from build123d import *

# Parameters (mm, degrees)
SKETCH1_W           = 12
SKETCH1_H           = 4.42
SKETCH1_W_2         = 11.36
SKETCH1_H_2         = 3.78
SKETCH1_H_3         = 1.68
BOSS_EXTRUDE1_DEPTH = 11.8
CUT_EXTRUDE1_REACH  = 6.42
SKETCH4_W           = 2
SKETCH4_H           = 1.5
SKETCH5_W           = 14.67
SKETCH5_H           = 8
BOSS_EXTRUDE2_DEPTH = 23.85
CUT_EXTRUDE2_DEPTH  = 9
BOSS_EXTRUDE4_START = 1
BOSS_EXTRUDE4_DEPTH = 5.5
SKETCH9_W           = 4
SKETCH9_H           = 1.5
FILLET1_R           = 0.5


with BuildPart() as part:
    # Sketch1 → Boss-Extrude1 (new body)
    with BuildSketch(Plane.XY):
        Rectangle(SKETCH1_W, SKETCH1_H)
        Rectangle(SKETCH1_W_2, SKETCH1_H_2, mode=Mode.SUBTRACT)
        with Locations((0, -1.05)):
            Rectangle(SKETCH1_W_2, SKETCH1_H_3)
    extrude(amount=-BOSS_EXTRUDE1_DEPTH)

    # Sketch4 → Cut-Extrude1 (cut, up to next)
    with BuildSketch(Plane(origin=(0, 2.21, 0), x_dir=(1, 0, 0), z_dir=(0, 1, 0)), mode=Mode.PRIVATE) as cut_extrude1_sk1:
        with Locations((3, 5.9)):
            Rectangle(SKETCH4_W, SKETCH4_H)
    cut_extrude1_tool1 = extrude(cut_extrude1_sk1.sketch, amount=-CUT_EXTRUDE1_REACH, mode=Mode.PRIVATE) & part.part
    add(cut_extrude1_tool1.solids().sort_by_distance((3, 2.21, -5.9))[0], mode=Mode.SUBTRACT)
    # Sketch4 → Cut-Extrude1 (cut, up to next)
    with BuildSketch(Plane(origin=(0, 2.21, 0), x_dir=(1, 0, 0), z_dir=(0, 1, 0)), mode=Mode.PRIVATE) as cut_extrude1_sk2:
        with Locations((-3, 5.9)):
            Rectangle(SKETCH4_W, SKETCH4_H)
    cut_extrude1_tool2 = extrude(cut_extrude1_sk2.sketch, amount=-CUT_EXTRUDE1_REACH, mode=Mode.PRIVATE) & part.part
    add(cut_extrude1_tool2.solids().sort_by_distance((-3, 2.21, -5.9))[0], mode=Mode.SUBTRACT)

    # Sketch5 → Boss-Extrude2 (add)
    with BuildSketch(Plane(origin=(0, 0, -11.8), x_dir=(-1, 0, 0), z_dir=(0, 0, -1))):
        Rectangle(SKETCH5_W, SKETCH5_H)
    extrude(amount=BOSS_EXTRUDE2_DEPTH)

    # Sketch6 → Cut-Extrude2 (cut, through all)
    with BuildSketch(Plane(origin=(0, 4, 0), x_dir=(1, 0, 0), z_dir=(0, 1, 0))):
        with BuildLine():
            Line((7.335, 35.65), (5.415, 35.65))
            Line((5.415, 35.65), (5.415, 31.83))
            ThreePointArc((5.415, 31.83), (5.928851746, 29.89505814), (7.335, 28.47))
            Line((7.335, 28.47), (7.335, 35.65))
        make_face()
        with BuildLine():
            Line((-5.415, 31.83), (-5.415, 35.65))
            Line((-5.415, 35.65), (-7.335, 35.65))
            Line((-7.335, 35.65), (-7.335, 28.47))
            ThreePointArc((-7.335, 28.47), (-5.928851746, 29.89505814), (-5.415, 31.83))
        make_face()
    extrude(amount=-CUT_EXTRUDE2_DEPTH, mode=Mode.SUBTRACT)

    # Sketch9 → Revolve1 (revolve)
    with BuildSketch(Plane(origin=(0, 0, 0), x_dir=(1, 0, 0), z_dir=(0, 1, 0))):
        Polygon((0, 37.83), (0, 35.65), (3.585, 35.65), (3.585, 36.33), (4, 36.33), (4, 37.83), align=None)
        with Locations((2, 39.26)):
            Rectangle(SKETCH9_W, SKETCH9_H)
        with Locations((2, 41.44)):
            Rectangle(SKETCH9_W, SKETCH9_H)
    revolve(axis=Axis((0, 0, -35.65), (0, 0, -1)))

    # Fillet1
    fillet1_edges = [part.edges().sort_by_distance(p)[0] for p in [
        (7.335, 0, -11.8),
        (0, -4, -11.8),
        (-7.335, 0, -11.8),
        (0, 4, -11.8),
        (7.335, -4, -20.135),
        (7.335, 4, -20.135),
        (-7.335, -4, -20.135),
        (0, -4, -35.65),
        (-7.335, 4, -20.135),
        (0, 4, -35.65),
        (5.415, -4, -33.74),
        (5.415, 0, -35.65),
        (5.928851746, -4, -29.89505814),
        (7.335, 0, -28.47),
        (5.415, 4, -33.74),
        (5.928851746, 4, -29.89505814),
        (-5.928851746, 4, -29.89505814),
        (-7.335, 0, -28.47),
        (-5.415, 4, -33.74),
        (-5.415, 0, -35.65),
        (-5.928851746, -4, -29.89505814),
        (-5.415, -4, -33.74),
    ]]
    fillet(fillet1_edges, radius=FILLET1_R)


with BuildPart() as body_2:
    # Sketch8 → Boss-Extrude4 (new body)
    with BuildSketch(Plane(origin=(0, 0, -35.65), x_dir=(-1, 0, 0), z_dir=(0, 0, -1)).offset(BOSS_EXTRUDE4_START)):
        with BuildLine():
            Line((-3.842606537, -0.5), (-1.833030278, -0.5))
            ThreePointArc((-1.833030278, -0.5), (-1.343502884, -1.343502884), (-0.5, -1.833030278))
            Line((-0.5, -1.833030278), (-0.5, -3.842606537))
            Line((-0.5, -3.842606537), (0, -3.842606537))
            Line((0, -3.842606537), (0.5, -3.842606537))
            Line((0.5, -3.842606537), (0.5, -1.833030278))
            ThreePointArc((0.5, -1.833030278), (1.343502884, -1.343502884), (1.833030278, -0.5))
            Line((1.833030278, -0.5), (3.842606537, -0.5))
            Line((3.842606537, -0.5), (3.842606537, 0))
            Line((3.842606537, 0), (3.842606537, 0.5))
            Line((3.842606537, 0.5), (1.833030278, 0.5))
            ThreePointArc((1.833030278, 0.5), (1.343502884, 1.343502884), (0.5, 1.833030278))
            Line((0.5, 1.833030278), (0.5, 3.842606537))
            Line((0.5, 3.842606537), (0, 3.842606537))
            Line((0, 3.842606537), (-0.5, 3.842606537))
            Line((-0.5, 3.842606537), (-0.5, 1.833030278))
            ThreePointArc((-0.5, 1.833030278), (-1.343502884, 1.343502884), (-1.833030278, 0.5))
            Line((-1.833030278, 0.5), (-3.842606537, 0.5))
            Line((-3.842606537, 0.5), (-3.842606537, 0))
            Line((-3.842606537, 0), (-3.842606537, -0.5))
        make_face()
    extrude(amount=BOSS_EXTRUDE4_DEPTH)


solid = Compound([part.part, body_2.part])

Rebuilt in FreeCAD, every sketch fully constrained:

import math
import FreeCAD as App
import Part
import Sketcher

V = App.Vector
Q = App.Units.Quantity


def edges_at(feature, points):
    """Names of the edges that pass closest to the given points."""
    edges = feature.Shape.Edges
    near = lambda p: min(range(len(edges)), key=lambda i: edges[i].distToShape(Part.Vertex(*p))[0])
    return sorted({f"Edge{near(p) + 1}" for p in points})

doc = App.newDocument("Part")
body = doc.addObject("PartDesign::Body", "Body")
body.AllowCompound = True

# Sketch on XY plane
sketch1 = doc.addObject("Sketcher::SketchObject", "Sketch")
body.addObject(sketch1)
sketch1.AttachmentSupport = (doc.XY_Plane, [""])
sketch1.MapMode = "FlatFace"
sketch1.addGeometry(Part.LineSegment(V(-6, 2.2, 0), V(-6, -2.2, 0)), False)
sketch1.addGeometry(Part.LineSegment(V(-6, -2.2, 0), V(6, -2.2, 0)), False)
sketch1.addGeometry(Part.LineSegment(V(6, -2.2, 0), V(6, 2.2, 0)), False)
sketch1.addGeometry(Part.LineSegment(V(6, 2.2, 0), V(-6, 2.2, 0)), False)
sketch1.addGeometry(Part.LineSegment(V(5.7, 1.9, 0), V(5.7, -0.2, 0)), False)
sketch1.addGeometry(Part.LineSegment(V(5.7, -0.2, 0), V(-5.7, -0.2, 0)), False)
sketch1.addGeometry(Part.LineSegment(V(-5.7, -0.2, 0), V(-5.7, 1.9, 0)), False)
sketch1.addGeometry(Part.LineSegment(V(-5.7, 1.9, 0), V(5.7, 1.9, 0)), False)
sketch1.addConstraint(Sketcher.Constraint("Coincident", 0, 2, 1, 1))
sketch1.addConstraint(Sketcher.Constraint("Coincident", 1, 2, 2, 1))
sketch1.addConstraint(Sketcher.Constraint("Coincident", 2, 2, 3, 1))
sketch1.addConstraint(Sketcher.Constraint("Coincident", 3, 2, 0, 1))
sketch1.addConstraint(Sketcher.Constraint("Coincident", 4, 2, 5, 1))
sketch1.addConstraint(Sketcher.Constraint("Coincident", 5, 2, 6, 1))
sketch1.addConstraint(Sketcher.Constraint("Coincident", 6, 2, 7, 1))
sketch1.addConstraint(Sketcher.Constraint("Coincident", 7, 2, 4, 1))
sketch1.addConstraint(Sketcher.Constraint("Vertical", 0))
sketch1.addConstraint(Sketcher.Constraint("Horizontal", 1))
sketch1.addConstraint(Sketcher.Constraint("Vertical", 2))
sketch1.addConstraint(Sketcher.Constraint("Horizontal", 3))
sketch1.addConstraint(Sketcher.Constraint("Vertical", 4))
sketch1.addConstraint(Sketcher.Constraint("Horizontal", 5))
sketch1.addConstraint(Sketcher.Constraint("Vertical", 6))
sketch1.addConstraint(Sketcher.Constraint("Horizontal", 7))
sketch1.addConstraint(Sketcher.Constraint("Symmetric", 0, 2, 2, 2, -1, 1))
sketch1.addConstraint(Sketcher.Constraint("DistanceX", 1, 1, 1, 2, Q("12 mm")))
sketch1.addConstraint(Sketcher.Constraint("DistanceY", 4, 2, 4, 1, Q("2.1 mm")))
sketch1.addConstraint(Sketcher.Constraint("DistanceY", 1, 2, 4, 2, Q("2 mm")))
sketch1.addConstraint(Sketcher.Constraint("DistanceX", 5, 2, 5, 1, Q("11.36 mm")))
sketch1.addConstraint(Sketcher.Constraint("DistanceY", 0, 2, 0, 1, Q("4.42 mm")))
sketch1.addConstraint(Sketcher.Constraint("DistanceX", -1, 1, 4, 2, Q("5.68 mm")))
pad1 = doc.addObject("PartDesign::Pad", "Pad")
body.addObject(pad1)
pad1.Profile = sketch1
pad1.Length = 11.8
pad1.Reversed = True

# Sketch on XZ plane
sketch2 = doc.addObject("Sketcher::SketchObject", "Sketch001")
body.addObject(sketch2)
sketch2.AttachmentSupport = (doc.XZ_Plane, [""])
sketch2.MapMode = "FlatFace"
sketch2.AttachmentOffset = App.Placement(V(0, 0, -2.21), App.Rotation())
sketch2.addGeometry(Part.LineSegment(V(2, -6.7, 0), V(2, -5.2, 0)), False)
sketch2.addGeometry(Part.LineSegment(V(2, -5.2, 0), V(4, -5.2, 0)), False)
sketch2.addGeometry(Part.LineSegment(V(4, -5.2, 0), V(4, -6.7, 0)), False)
sketch2.addGeometry(Part.LineSegment(V(4, -6.7, 0), V(2, -6.7, 0)), False)
sketch2.addConstraint(Sketcher.Constraint("Coincident", 0, 2, 1, 1))
sketch2.addConstraint(Sketcher.Constraint("Coincident", 1, 2, 2, 1))
sketch2.addConstraint(Sketcher.Constraint("Coincident", 2, 2, 3, 1))
sketch2.addConstraint(Sketcher.Constraint("Coincident", 3, 2, 0, 1))
sketch2.addConstraint(Sketcher.Constraint("Vertical", 0))
sketch2.addConstraint(Sketcher.Constraint("Horizontal", 1))
sketch2.addConstraint(Sketcher.Constraint("Vertical", 2))
sketch2.addConstraint(Sketcher.Constraint("Horizontal", 3))
sketch2.addConstraint(Sketcher.Constraint("DistanceX", 1, 1, 1, 2, Q("2 mm")))
sketch2.addConstraint(Sketcher.Constraint("DistanceY", 0, 1, 0, 2, Q("1.5 mm")))
sketch2.addConstraint(Sketcher.Constraint("DistanceX", -1, 1, 0, 2, Q("2 mm")))
sketch2.addConstraint(Sketcher.Constraint("DistanceY", 0, 2, -1, 1, Q("5.15 mm")))
pocket1 = doc.addObject("PartDesign::Pocket", "Pocket")
body.addObject(pocket1)
pocket1.Profile = sketch2
pocket1.Type = "UpToFirst"
pocket1.Reversed = True

# Sketch on XZ plane
sketch3 = doc.addObject("Sketcher::SketchObject", "Sketch002")
body.addObject(sketch3)
sketch3.AttachmentSupport = (doc.XZ_Plane, [""])
sketch3.MapMode = "FlatFace"
sketch3.AttachmentOffset = App.Placement(V(0, 0, -2.21), App.Rotation())
sketch3.addGeometry(Part.LineSegment(V(-4, -6.7, 0), V(-4, -5.2, 0)), False)
sketch3.addGeometry(Part.LineSegment(V(-4, -5.2, 0), V(-2, -5.2, 0)), False)
sketch3.addGeometry(Part.LineSegment(V(-2, -5.2, 0), V(-2, -6.7, 0)), False)
sketch3.addGeometry(Part.LineSegment(V(-2, -6.7, 0), V(-4, -6.7, 0)), False)
sketch3.addConstraint(Sketcher.Constraint("Coincident", 0, 2, 1, 1))
sketch3.addConstraint(Sketcher.Constraint("Coincident", 1, 2, 2, 1))
sketch3.addConstraint(Sketcher.Constraint("Coincident", 2, 2, 3, 1))
sketch3.addConstraint(Sketcher.Constraint("Coincident", 3, 2, 0, 1))
sketch3.addConstraint(Sketcher.Constraint("Vertical", 0))
sketch3.addConstraint(Sketcher.Constraint("Horizontal", 1))
sketch3.addConstraint(Sketcher.Constraint("Vertical", 2))
sketch3.addConstraint(Sketcher.Constraint("Horizontal", 3))
sketch3.addConstraint(Sketcher.Constraint("DistanceX", 1, 1, 1, 2, Q("2 mm")))
sketch3.addConstraint(Sketcher.Constraint("DistanceY", 0, 1, 0, 2, Q("1.5 mm")))
sketch3.addConstraint(Sketcher.Constraint("DistanceX", 0, 2, -1, 1, Q("4 mm")))
sketch3.addConstraint(Sketcher.Constraint("DistanceY", 0, 2, -1, 1, Q("5.15 mm")))
pocket2 = doc.addObject("PartDesign::Pocket", "Pocket001")
body.addObject(pocket2)
pocket2.Profile = sketch3
pocket2.Type = "UpToFirst"
pocket2.Reversed = True

# Sketch on XY plane
sketch4 = doc.addObject("Sketcher::SketchObject", "Sketch003")
body.addObject(sketch4)
sketch4.AttachmentSupport = (doc.XY_Plane, [""])
sketch4.MapMode = "FlatFace"
sketch4.AttachmentOffset = App.Placement(V(0, 0, -11.8), App.Rotation())
sketch4.addGeometry(Part.LineSegment(V(7, 4, 0), V(7, -4, 0)), False)
sketch4.addGeometry(Part.LineSegment(V(7, -4, 0), V(-7, -4, 0)), False)
sketch4.addGeometry(Part.LineSegment(V(-7, -4, 0), V(-7, 4, 0)), False)
sketch4.addGeometry(Part.LineSegment(V(-7, 4, 0), V(7, 4, 0)), False)
sketch4.addConstraint(Sketcher.Constraint("Coincident", 0, 2, 1, 1))
sketch4.addConstraint(Sketcher.Constraint("Coincident", 1, 2, 2, 1))
sketch4.addConstraint(Sketcher.Constraint("Coincident", 2, 2, 3, 1))
sketch4.addConstraint(Sketcher.Constraint("Coincident", 3, 2, 0, 1))
sketch4.addConstraint(Sketcher.Constraint("Vertical", 0))
sketch4.addConstraint(Sketcher.Constraint("Horizontal", 1))
sketch4.addConstraint(Sketcher.Constraint("Vertical", 2))
sketch4.addConstraint(Sketcher.Constraint("Horizontal", 3))
sketch4.addConstraint(Sketcher.Constraint("Symmetric", 0, 2, 2, 2, -1, 1))
sketch4.addConstraint(Sketcher.Constraint("DistanceY", 0, 2, 0, 1, Q("8 mm")))
sketch4.addConstraint(Sketcher.Constraint("DistanceX", 1, 2, 1, 1, Q("14.67 mm")))
pad2 = doc.addObject("PartDesign::Pad", "Pad001")
body.addObject(pad2)
pad2.Profile = sketch4
pad2.Length = 23.85
pad2.Reversed = True

# Sketch on XZ plane
sketch5 = doc.addObject("Sketcher::SketchObject", "Sketch004")
body.addObject(sketch5)
sketch5.AttachmentSupport = (doc.XZ_Plane, [""])
sketch5.MapMode = "FlatFace"
sketch5.AttachmentOffset = App.Placement(V(0, 0, -4), App.Rotation())
sketch5.addGeometry(Part.LineSegment(V(7.3, -35.6, 0), V(5.4, -35.6, 0)), False)
sketch5.addGeometry(Part.LineSegment(V(5.4, -35.6, 0), V(5.4, -31.8, 0)), False)
sketch5.addGeometry(Part.ArcOfCircle(Part.Circle(V(9.3, -31.8, 0), V(0, 0, 1), 3.9), math.radians(121), math.radians(180)), False)
sketch5.addGeometry(Part.LineSegment(V(7.3, -28.5, 0), V(7.3, -35.6, 0)), False)
sketch5.addGeometry(Part.LineSegment(V(-5.4, -31.8, 0), V(-5.4, -35.6, 0)), False)
sketch5.addGeometry(Part.LineSegment(V(-5.4, -35.6, 0), V(-7.3, -35.6, 0)), False)
sketch5.addGeometry(Part.LineSegment(V(-7.3, -35.6, 0), V(-7.3, -28.5, 0)), False)
sketch5.addGeometry(Part.ArcOfCircle(Part.Circle(V(-9.3, -31.8, 0), V(0, 0, 1), 3.9), math.radians(0), math.radians(59)), False)
sketch5.addConstraint(Sketcher.Constraint("Coincident", 0, 2, 1, 1))
sketch5.addConstraint(Sketcher.Constraint("Tangent", 1, 2, 2, 2))
sketch5.addConstraint(Sketcher.Constraint("Coincident", 2, 1, 3, 1))
sketch5.addConstraint(Sketcher.Constraint("Coincident", 3, 2, 0, 1))
sketch5.addConstraint(Sketcher.Constraint("Coincident", 4, 2, 5, 1))
sketch5.addConstraint(Sketcher.Constraint("Coincident", 5, 2, 6, 1))
sketch5.addConstraint(Sketcher.Constraint("Coincident", 6, 2, 7, 2))
sketch5.addConstraint(Sketcher.Constraint("Tangent", 7, 1, 4, 1))
sketch5.addConstraint(Sketcher.Constraint("Horizontal", 0))
sketch5.addConstraint(Sketcher.Constraint("Vertical", 1))
sketch5.addConstraint(Sketcher.Constraint("Vertical", 3))
sketch5.addConstraint(Sketcher.Constraint("Vertical", 4))
sketch5.addConstraint(Sketcher.Constraint("Horizontal", 5))
sketch5.addConstraint(Sketcher.Constraint("Vertical", 6))
sketch5.addConstraint(Sketcher.Constraint("Equal", 2, 7))
sketch5.addConstraint(Sketcher.Constraint("Symmetric", 2, 3, 7, 3, -2))
sketch5.addConstraint(Sketcher.Constraint("Symmetric", 3, 2, 5, 2, -2))
sketch5.addConstraint(Sketcher.Constraint("Radius", 2, Q("3.9 mm")))
sketch5.addConstraint(Sketcher.Constraint("DistanceX", 0, 2, 0, 1, Q("1.92 mm")))
sketch5.addConstraint(Sketcher.Constraint("DistanceY", 1, 1, 1, 2, Q("3.82 mm")))
sketch5.addConstraint(Sketcher.Constraint("DistanceY", 2, 3, -1, 1, Q("31.83 mm")))
sketch5.addConstraint(Sketcher.Constraint("DistanceX", 7, 3, 2, 3, Q("18.63 mm")))
pocket3 = doc.addObject("PartDesign::Pocket", "Pocket002")
body.addObject(pocket3)
pocket3.Profile = sketch5
pocket3.Type = "ThroughAll"
pocket3.Reversed = True

# Sketch on XZ plane
sketch6 = doc.addObject("Sketcher::SketchObject", "Sketch005")
body.addObject(sketch6)
sketch6.AttachmentSupport = (doc.XZ_Plane, [""])
sketch6.MapMode = "FlatFace"
sketch6.addGeometry(Part.LineSegment(V(0, -37.83, 0), V(0, -35.65, 0)), False)
sketch6.addGeometry(Part.LineSegment(V(0, -35.65, 0), V(3.58, -35.65, 0)), False)
sketch6.addGeometry(Part.LineSegment(V(3.58, -35.65, 0), V(3.58, -36.33, 0)), False)
sketch6.addGeometry(Part.LineSegment(V(3.58, -36.33, 0), V(4, -36.33, 0)), False)
sketch6.addGeometry(Part.LineSegment(V(4, -36.33, 0), V(4, -37.83, 0)), False)
sketch6.addGeometry(Part.LineSegment(V(4, -37.83, 0), V(0, -37.83, 0)), False)
sketch6.addGeometry(Part.LineSegment(V(0, -40.01, 0), V(0, -38.51, 0)), False)
sketch6.addGeometry(Part.LineSegment(V(0, -38.51, 0), V(4, -38.51, 0)), False)
sketch6.addGeometry(Part.LineSegment(V(4, -38.51, 0), V(4, -40.01, 0)), False)
sketch6.addGeometry(Part.LineSegment(V(4, -40.01, 0), V(0, -40.01, 0)), False)
sketch6.addGeometry(Part.LineSegment(V(0, -42.19, 0), V(0, -40.69, 0)), False)
sketch6.addGeometry(Part.LineSegment(V(0, -40.69, 0), V(4, -40.69, 0)), False)
sketch6.addGeometry(Part.LineSegment(V(4, -40.69, 0), V(4, -42.19, 0)), False)
sketch6.addGeometry(Part.LineSegment(V(4, -42.19, 0), V(0, -42.19, 0)), False)
sketch6.addConstraint(Sketcher.Constraint("Coincident", 0, 2, 1, 1))
sketch6.addConstraint(Sketcher.Constraint("Coincident", 1, 2, 2, 1))
sketch6.addConstraint(Sketcher.Constraint("Coincident", 2, 2, 3, 1))
sketch6.addConstraint(Sketcher.Constraint("Coincident", 3, 2, 4, 1))
sketch6.addConstraint(Sketcher.Constraint("Coincident", 4, 2, 5, 1))
sketch6.addConstraint(Sketcher.Constraint("Coincident", 5, 2, 0, 1))
sketch6.addConstraint(Sketcher.Constraint("Coincident", 6, 2, 7, 1))
sketch6.addConstraint(Sketcher.Constraint("Coincident", 7, 2, 8, 1))
sketch6.addConstraint(Sketcher.Constraint("Coincident", 8, 2, 9, 1))
sketch6.addConstraint(Sketcher.Constraint("Coincident", 9, 2, 6, 1))
sketch6.addConstraint(Sketcher.Constraint("Coincident", 10, 2, 11, 1))
sketch6.addConstraint(Sketcher.Constraint("Coincident", 11, 2, 12, 1))
sketch6.addConstraint(Sketcher.Constraint("Coincident", 12, 2, 13, 1))
sketch6.addConstraint(Sketcher.Constraint("Coincident", 13, 2, 10, 1))
sketch6.addConstraint(Sketcher.Constraint("Vertical", 0))
sketch6.addConstraint(Sketcher.Constraint("Horizontal", 1))
sketch6.addConstraint(Sketcher.Constraint("Vertical", 2))
sketch6.addConstraint(Sketcher.Constraint("Horizontal", 3))
sketch6.addConstraint(Sketcher.Constraint("Vertical", 4))
sketch6.addConstraint(Sketcher.Constraint("Horizontal", 5))
sketch6.addConstraint(Sketcher.Constraint("Vertical", 6))
sketch6.addConstraint(Sketcher.Constraint("Horizontal", 7))
sketch6.addConstraint(Sketcher.Constraint("Vertical", 8))
sketch6.addConstraint(Sketcher.Constraint("Horizontal", 9))
sketch6.addConstraint(Sketcher.Constraint("Vertical", 10))
sketch6.addConstraint(Sketcher.Constraint("Horizontal", 11))
sketch6.addConstraint(Sketcher.Constraint("Vertical", 12))
sketch6.addConstraint(Sketcher.Constraint("Horizontal", 13))
sketch6.addConstraint(Sketcher.Constraint("PointOnObject", 0, 2, -2))
sketch6.addConstraint(Sketcher.Constraint("PointOnObject", 6, 2, -2))
sketch6.addConstraint(Sketcher.Constraint("PointOnObject", 10, 2, -2))
sketch6.addConstraint(Sketcher.Constraint("Vertical", 4, 2, 7, 2))
sketch6.addConstraint(Sketcher.Constraint("Vertical", 8, 2, 11, 2))
sketch6.addConstraint(Sketcher.Constraint("Equal", 4, 6))
sketch6.addConstraint(Sketcher.Constraint("Equal", 8, 10))
sketch6.addConstraint(Sketcher.Constraint("DistanceX", 5, 2, 5, 1, Q("4 mm")))
sketch6.addConstraint(Sketcher.Constraint("DistanceY", 4, 2, 4, 1, Q("1.5 mm")))
sketch6.addConstraint(Sketcher.Constraint("DistanceY", 0, 1, 0, 2, Q("2.18 mm")))
sketch6.addConstraint(Sketcher.Constraint("DistanceX", 1, 1, 1, 2, Q("3.585 mm")))
sketch6.addConstraint(Sketcher.Constraint("DistanceY", 0, 2, -1, 1, Q("35.65 mm")))
sketch6.addConstraint(Sketcher.Constraint("DistanceY", 6, 2, -1, 1, Q("38.51 mm")))
sketch6.addConstraint(Sketcher.Constraint("DistanceY", 10, 2, -1, 1, Q("40.69 mm")))
revolution = doc.addObject("PartDesign::Revolution", "Revolution")
body.addObject(revolution)
revolution.Profile = sketch6
revolution.ReferenceAxis = (sketch6, ["V_Axis"])
revolution.Angle = 360
doc.recompute()

fillet = doc.addObject("PartDesign::Fillet", "Fillet")
body.addObject(fillet)
fillet.Base = (revolution, edges_at(revolution, [
    (7.335, 0, -11.8),
    (0, -4, -11.8),
    (-7.335, 0, -11.8),
    (0, 4, -11.8),
    (7.335, -4, -20.135),
    (7.335, 4, -20.135),
    (-7.335, -4, -20.135),
    (0, -4, -35.65),
    (-7.335, 4, -20.135),
    (0, 4, -35.65),
    (5.415, -4, -33.74),
    (5.415, 0, -35.65),
    (5.929, -4, -29.895),
    (7.335, 0, -28.47),
    (5.415, 4, -33.74),
    (5.929, 4, -29.895),
    (-5.929, 4, -29.895),
    (-7.335, 0, -28.47),
    (-5.415, 4, -33.74),
    (-5.415, 0, -35.65),
    (-5.929, -4, -29.895),
    (-5.415, -4, -33.74),
]))
fillet.Radius = 0.5
body2 = doc.addObject("PartDesign::Body", "Body001")

# Sketch on XY plane
sketch7 = doc.addObject("Sketcher::SketchObject", "Sketch006")
body2.addObject(sketch7)
sketch7.AttachmentSupport = (doc.getObject("XY_Plane001"), [""])
sketch7.MapMode = "FlatFace"
sketch7.AttachmentOffset = App.Placement(V(0, 0, -36.65), App.Rotation())
sketch7.addGeometry(Part.LineSegment(V(3.8, -0.5, 0), V(1.8, -0.5, 0)), False)
sketch7.addGeometry(Part.ArcOfCircle(Part.Circle(V(0, 0, 0), V(0, 0, 1), 1.9), math.radians(-75), math.radians(-15)), False)
sketch7.addGeometry(Part.LineSegment(V(0.5, -1.8, 0), V(0.5, -3.8, 0)), False)
sketch7.addGeometry(Part.LineSegment(V(0.5, -3.8, 0), V(-0.5, -3.8, 0)), False)
sketch7.addGeometry(Part.LineSegment(V(-0.5, -3.8, 0), V(-0.5, -1.8, 0)), False)
sketch7.addGeometry(Part.ArcOfCircle(Part.Circle(V(0, 0, 0), V(0, 0, 1), 1.9), math.radians(-165), math.radians(-105)), False)
sketch7.addGeometry(Part.LineSegment(V(-1.8, -0.5, 0), V(-3.8, -0.5, 0)), False)
sketch7.addGeometry(Part.LineSegment(V(-3.8, -0.5, 0), V(-3.8, 0.5, 0)), False)
sketch7.addGeometry(Part.LineSegment(V(-3.8, 0.5, 0), V(-1.8, 0.5, 0)), False)
sketch7.addGeometry(Part.ArcOfCircle(Part.Circle(V(0, 0, 0), V(0, 0, 1), 1.9), math.radians(105), math.radians(165)), False)
sketch7.addGeometry(Part.LineSegment(V(-0.5, 1.8, 0), V(-0.5, 3.8, 0)), False)
sketch7.addGeometry(Part.LineSegment(V(-0.5, 3.8, 0), V(0.5, 3.8, 0)), False)
sketch7.addGeometry(Part.LineSegment(V(0.5, 3.8, 0), V(0.5, 1.8, 0)), False)
sketch7.addGeometry(Part.ArcOfCircle(Part.Circle(V(0, 0, 0), V(0, 0, 1), 1.9), math.radians(15), math.radians(75)), False)
sketch7.addGeometry(Part.LineSegment(V(1.8, 0.5, 0), V(3.8, 0.5, 0)), False)
sketch7.addGeometry(Part.LineSegment(V(3.8, 0.5, 0), V(3.8, -0.5, 0)), False)
sketch7.addConstraint(Sketcher.Constraint("Coincident", 0, 2, 1, 2))
sketch7.addConstraint(Sketcher.Constraint("Coincident", 1, 1, 2, 1))
sketch7.addConstraint(Sketcher.Constraint("Coincident", 2, 2, 3, 1))
sketch7.addConstraint(Sketcher.Constraint("Coincident", 3, 2, 4, 1))
sketch7.addConstraint(Sketcher.Constraint("Coincident", 4, 2, 5, 2))
sketch7.addConstraint(Sketcher.Constraint("Coincident", 5, 1, 6, 1))
sketch7.addConstraint(Sketcher.Constraint("Coincident", 6, 2, 7, 1))
sketch7.addConstraint(Sketcher.Constraint("Coincident", 7, 2, 8, 1))
sketch7.addConstraint(Sketcher.Constraint("Coincident", 8, 2, 9, 2))
sketch7.addConstraint(Sketcher.Constraint("Coincident", 9, 1, 10, 1))
sketch7.addConstraint(Sketcher.Constraint("Coincident", 10, 2, 11, 1))
sketch7.addConstraint(Sketcher.Constraint("Coincident", 11, 2, 12, 1))
sketch7.addConstraint(Sketcher.Constraint("Coincident", 12, 2, 13, 2))
sketch7.addConstraint(Sketcher.Constraint("Coincident", 13, 1, 14, 1))
sketch7.addConstraint(Sketcher.Constraint("Coincident", 14, 2, 15, 1))
sketch7.addConstraint(Sketcher.Constraint("Coincident", 15, 2, 0, 1))
sketch7.addConstraint(Sketcher.Constraint("Horizontal", 0))
sketch7.addConstraint(Sketcher.Constraint("Vertical", 2))
sketch7.addConstraint(Sketcher.Constraint("Horizontal", 3))
sketch7.addConstraint(Sketcher.Constraint("Vertical", 4))
sketch7.addConstraint(Sketcher.Constraint("Horizontal", 6))
sketch7.addConstraint(Sketcher.Constraint("Vertical", 7))
sketch7.addConstraint(Sketcher.Constraint("Horizontal", 8))
sketch7.addConstraint(Sketcher.Constraint("Vertical", 10))
sketch7.addConstraint(Sketcher.Constraint("Horizontal", 11))
sketch7.addConstraint(Sketcher.Constraint("Vertical", 12))
sketch7.addConstraint(Sketcher.Constraint("Horizontal", 14))
sketch7.addConstraint(Sketcher.Constraint("Vertical", 15))
sketch7.addConstraint(Sketcher.Constraint("Coincident", 1, 3, -1, 1))
sketch7.addConstraint(Sketcher.Constraint("Coincident", 5, 3, -1, 1))
sketch7.addConstraint(Sketcher.Constraint("Coincident", 9, 3, -1, 1))
sketch7.addConstraint(Sketcher.Constraint("Coincident", 13, 3, -1, 1))
sketch7.addConstraint(Sketcher.Constraint("Equal", 1, 5))
sketch7.addConstraint(Sketcher.Constraint("Equal", 5, 9))
sketch7.addConstraint(Sketcher.Constraint("Equal", 9, 13))
sketch7.addConstraint(Sketcher.Constraint("Symmetric", 2, 2, 10, 2, -1, 1))
sketch7.addConstraint(Sketcher.Constraint("Symmetric", 6, 2, 14, 2, -1, 1))
sketch7.addConstraint(Sketcher.Constraint("Horizontal", 1, 1, 4, 2))
sketch7.addConstraint(Sketcher.Constraint("Horizontal", 0, 2, 5, 1))
sketch7.addConstraint(Sketcher.Constraint("Horizontal", 9, 1, 12, 2))
sketch7.addConstraint(Sketcher.Constraint("Horizontal", 8, 2, 13, 1))
sketch7.addConstraint(Sketcher.Constraint("Equal", 14, 2))
sketch7.addConstraint(Sketcher.Constraint("Equal", 11, 7))
sketch7.addConstraint(Sketcher.Constraint("Radius", 1, Q("1.9 mm")))
sketch7.addConstraint(Sketcher.Constraint("DistanceX", 3, 2, 3, 1, Q("1 mm")))
sketch7.addConstraint(Sketcher.Constraint("DistanceX", 0, 2, 0, 1, Q("2.009576 mm")))
pad3 = doc.addObject("PartDesign::Pad", "Pad002")
body2.addObject(pad3)
pad3.Profile = sketch7
pad3.Length = 5.5
pad3.Reversed = True

doc.recompute()
